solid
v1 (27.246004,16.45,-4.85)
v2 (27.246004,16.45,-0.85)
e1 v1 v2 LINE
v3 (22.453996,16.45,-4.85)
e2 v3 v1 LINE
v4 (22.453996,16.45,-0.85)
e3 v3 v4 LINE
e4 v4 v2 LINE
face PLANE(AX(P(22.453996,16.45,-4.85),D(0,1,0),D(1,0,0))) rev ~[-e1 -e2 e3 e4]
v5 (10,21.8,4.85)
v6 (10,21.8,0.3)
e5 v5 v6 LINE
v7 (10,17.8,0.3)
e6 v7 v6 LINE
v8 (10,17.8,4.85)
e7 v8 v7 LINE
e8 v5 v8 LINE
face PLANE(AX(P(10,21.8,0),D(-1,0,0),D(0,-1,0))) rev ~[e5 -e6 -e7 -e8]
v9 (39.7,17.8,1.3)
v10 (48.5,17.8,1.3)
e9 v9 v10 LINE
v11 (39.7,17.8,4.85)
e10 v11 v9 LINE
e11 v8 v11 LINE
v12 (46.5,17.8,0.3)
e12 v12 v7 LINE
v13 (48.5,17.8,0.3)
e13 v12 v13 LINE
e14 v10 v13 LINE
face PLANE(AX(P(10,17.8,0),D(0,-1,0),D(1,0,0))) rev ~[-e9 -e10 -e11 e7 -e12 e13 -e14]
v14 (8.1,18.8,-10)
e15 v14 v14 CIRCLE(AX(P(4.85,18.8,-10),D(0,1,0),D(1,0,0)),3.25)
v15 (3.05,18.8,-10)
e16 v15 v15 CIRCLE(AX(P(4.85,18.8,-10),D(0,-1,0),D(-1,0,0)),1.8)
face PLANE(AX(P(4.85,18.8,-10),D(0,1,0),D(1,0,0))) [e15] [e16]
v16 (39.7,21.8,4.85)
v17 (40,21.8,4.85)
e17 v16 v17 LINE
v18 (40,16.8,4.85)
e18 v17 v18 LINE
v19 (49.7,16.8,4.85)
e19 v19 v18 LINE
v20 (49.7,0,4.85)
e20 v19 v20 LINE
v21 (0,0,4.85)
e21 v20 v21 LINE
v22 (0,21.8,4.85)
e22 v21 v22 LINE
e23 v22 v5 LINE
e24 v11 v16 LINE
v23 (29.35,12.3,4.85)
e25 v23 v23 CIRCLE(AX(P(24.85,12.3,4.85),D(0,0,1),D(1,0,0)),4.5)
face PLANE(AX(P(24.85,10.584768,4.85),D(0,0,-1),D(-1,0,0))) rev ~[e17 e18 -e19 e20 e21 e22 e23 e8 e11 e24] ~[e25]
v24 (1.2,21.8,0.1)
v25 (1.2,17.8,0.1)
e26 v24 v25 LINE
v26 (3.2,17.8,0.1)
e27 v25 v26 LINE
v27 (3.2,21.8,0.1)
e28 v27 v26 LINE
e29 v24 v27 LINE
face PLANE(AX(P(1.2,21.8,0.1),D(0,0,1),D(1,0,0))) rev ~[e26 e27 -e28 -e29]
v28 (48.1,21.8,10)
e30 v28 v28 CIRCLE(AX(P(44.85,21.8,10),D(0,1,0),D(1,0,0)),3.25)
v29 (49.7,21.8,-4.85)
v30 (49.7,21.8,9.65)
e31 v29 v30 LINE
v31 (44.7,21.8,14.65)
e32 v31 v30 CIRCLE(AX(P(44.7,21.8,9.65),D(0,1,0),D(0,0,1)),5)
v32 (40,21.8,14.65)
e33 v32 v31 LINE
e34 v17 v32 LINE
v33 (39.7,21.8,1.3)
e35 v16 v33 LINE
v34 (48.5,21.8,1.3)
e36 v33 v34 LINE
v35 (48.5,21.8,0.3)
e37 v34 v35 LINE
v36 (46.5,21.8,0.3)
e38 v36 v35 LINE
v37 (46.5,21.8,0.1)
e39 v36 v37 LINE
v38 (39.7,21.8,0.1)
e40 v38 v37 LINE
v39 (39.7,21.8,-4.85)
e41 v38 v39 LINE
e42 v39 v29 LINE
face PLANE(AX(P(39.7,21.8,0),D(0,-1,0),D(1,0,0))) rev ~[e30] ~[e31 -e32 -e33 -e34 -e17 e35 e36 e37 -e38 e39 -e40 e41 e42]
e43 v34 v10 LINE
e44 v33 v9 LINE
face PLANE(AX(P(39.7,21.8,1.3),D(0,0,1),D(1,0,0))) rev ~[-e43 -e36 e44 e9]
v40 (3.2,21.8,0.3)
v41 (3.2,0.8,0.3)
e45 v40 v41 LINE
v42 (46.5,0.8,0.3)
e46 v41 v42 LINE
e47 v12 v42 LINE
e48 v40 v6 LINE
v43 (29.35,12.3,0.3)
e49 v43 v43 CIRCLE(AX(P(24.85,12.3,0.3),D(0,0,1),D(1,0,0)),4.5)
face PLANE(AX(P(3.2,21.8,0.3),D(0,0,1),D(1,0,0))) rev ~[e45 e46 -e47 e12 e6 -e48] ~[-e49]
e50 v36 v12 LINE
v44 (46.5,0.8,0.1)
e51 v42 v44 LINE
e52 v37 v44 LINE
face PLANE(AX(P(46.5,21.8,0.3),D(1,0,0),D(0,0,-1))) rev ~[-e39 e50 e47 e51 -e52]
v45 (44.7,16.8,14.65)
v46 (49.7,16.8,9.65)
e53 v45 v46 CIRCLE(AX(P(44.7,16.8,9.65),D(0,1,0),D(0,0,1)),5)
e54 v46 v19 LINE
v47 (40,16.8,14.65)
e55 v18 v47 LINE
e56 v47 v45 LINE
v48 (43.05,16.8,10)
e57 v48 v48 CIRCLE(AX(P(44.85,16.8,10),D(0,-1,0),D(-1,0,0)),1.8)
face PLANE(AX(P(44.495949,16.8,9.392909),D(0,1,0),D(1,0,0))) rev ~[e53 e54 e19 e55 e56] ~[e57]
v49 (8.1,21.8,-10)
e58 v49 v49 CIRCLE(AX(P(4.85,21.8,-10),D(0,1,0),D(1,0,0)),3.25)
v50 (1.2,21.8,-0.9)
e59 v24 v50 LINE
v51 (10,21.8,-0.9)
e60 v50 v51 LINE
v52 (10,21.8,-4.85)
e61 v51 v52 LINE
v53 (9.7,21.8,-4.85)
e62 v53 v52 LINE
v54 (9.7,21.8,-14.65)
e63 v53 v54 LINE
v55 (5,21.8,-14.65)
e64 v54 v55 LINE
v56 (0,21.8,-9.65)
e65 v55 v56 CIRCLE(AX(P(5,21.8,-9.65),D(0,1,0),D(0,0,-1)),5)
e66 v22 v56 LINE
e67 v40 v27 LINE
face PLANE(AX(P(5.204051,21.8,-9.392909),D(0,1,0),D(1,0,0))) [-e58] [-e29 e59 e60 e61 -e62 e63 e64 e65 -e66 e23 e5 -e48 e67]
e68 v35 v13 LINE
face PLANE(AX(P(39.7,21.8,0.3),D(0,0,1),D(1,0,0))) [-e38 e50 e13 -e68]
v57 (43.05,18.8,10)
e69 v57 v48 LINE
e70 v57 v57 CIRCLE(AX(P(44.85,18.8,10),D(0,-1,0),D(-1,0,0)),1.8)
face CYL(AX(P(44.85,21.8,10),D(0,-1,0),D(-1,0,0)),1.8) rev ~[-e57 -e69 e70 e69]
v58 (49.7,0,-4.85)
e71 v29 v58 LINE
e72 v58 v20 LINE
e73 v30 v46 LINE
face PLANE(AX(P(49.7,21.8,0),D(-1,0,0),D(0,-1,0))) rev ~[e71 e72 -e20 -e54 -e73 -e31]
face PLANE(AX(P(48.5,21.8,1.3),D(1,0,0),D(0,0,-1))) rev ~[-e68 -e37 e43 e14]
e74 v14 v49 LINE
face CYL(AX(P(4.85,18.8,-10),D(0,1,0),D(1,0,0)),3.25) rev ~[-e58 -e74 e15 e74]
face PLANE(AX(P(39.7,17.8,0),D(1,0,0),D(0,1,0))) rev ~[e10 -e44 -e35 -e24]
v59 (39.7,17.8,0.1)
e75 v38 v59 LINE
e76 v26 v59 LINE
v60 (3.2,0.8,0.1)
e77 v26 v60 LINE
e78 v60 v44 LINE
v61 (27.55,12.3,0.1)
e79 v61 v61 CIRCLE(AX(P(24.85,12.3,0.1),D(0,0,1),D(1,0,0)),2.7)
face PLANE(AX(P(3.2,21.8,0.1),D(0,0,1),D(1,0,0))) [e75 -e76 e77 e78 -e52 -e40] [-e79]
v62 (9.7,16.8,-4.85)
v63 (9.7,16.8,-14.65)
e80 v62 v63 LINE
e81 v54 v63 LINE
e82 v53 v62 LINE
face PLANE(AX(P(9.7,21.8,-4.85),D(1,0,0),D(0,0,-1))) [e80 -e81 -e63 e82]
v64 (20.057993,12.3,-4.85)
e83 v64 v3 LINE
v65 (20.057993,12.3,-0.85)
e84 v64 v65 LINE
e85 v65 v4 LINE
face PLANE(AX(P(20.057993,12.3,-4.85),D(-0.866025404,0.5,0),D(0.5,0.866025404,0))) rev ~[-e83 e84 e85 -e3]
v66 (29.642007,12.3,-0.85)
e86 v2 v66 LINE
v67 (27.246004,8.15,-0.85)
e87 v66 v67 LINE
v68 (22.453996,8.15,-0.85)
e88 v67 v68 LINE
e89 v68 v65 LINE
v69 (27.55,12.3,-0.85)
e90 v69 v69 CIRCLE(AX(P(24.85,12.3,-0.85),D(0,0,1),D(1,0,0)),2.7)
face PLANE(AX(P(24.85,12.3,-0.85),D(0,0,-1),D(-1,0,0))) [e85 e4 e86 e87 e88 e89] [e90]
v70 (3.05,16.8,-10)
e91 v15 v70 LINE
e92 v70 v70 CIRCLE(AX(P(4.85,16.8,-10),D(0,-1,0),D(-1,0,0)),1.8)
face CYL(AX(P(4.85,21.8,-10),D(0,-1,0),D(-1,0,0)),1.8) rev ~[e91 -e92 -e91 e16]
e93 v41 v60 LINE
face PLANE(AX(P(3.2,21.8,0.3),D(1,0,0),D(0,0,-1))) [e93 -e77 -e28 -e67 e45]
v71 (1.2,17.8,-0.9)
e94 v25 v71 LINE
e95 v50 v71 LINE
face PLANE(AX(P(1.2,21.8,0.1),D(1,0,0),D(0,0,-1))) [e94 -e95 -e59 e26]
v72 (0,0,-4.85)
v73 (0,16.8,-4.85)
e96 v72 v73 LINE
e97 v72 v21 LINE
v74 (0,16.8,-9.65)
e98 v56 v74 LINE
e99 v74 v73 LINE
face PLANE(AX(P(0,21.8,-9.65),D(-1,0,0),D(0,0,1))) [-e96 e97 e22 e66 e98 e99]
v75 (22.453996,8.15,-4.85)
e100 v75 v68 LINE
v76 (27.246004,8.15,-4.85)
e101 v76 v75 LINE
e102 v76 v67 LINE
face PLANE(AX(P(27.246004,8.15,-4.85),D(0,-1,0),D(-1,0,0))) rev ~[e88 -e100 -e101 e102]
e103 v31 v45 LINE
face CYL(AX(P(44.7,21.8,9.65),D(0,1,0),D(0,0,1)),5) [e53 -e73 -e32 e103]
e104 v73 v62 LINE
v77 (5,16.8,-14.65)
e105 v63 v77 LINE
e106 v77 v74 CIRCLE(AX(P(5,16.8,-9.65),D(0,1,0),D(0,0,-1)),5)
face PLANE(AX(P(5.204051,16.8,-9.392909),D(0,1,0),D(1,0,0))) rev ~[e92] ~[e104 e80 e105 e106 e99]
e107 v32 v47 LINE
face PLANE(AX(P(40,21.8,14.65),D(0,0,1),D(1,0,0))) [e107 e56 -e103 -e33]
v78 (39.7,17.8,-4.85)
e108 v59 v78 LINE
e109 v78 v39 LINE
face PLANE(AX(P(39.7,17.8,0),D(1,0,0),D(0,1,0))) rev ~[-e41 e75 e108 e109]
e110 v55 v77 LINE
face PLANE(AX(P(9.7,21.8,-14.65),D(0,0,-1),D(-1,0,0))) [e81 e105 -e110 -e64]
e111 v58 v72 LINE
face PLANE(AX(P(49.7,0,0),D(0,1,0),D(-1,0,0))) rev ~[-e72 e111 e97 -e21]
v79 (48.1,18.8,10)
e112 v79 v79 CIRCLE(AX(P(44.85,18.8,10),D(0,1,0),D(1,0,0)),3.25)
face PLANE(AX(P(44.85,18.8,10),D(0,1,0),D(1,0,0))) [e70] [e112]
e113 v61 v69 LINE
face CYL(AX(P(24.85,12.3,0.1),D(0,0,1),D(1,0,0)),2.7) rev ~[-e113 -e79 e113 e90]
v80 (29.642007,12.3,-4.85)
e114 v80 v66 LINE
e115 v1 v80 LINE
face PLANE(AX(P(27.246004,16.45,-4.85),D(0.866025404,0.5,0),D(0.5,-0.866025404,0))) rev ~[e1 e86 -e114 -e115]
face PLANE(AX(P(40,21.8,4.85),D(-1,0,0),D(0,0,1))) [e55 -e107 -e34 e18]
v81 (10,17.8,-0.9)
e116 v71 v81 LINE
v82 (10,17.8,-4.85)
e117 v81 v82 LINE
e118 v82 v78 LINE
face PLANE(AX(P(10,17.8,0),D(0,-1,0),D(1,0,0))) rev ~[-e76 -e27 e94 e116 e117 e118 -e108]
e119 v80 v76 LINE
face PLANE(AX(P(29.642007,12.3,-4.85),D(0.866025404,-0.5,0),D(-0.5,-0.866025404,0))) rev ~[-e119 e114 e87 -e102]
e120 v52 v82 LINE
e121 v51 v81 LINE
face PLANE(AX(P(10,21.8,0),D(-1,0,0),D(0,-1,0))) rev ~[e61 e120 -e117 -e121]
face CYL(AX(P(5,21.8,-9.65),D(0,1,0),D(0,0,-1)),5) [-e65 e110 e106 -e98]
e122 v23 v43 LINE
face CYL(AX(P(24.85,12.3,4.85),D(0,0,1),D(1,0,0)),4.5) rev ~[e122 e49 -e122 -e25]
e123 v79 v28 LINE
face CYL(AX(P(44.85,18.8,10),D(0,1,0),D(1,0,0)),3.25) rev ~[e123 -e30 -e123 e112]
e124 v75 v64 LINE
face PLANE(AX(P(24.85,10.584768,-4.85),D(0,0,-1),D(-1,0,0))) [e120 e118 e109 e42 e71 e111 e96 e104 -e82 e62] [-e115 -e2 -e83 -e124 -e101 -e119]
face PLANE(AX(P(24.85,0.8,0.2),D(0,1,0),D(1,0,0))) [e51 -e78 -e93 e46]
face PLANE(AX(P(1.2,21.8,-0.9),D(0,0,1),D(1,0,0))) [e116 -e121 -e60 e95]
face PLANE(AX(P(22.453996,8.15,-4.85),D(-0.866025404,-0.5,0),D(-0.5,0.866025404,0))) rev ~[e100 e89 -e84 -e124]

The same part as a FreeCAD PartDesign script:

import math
import FreeCAD as App
import Part
import Sketcher

V = App.Vector
Q = App.Units.Quantity


def add_polygon(sketch, points):
    """Adds a closed chain of lines whose ends are joined by coincident constraints."""
    first, n = sketch.GeometryCount, len(points)
    for a, b in zip(points, points[1:] + points[:1]):
        sketch.addGeometry(Part.LineSegment(App.Vector(*a, 0), App.Vector(*b, 0)), False)
    for i in range(n):
        sketch.addConstraint(Sketcher.Constraint("Coincident", first + i, 2, first + (i + 1) % n, 1))

doc = App.newDocument("Part")
body = doc.addObject("PartDesign::Body", "Body")

sketch1 = body.newObject("Sketcher::SketchObject", "Sketch")
sketch1.AttachmentSupport = (doc.getObject("XY_Plane"), [""])
sketch1.MapMode = "FlatFace"
add_polygon(sketch1, [(0, 21.8), (0, 0), (49.7, 0), (49.7, 21.8), (39.7, 21.8), (39.7, 17.8), (10, 17.8), (10, 21.8)])
sketch1.addConstraint([
    Sketcher.Constraint("Vertical", 0),
    Sketcher.Constraint("Horizontal", 1),
    Sketcher.Constraint("Vertical", 2),
    Sketcher.Constraint("Horizontal", 3),
    Sketcher.Constraint("Vertical", 4),
    Sketcher.Constraint("Horizontal", 5),
    Sketcher.Constraint("Vertical", 6),
    Sketcher.Constraint("Horizontal", 7),
    Sketcher.Constraint("Coincident", 0, 2, -1, 1),
    Sketcher.Constraint("Horizontal", 3, 2, 6, 2),
    Sketcher.Constraint("Equal", 3, 7),
    Sketcher.Constraint("DistanceX", 3, 2, 3, 1, 10.0),
    Sketcher.Constraint("DistanceY", 4, 2, 4, 1, 4.0),
    Sketcher.Constraint("DistanceX", 1, 1, 1, 2, 49.7),
    Sketcher.Constraint("DistanceY", 0, 2, 0, 1, 21.8),
])
pad1 = body.newObject("PartDesign::Pad", "Pad")
pad1.Profile = sketch1
pad1.Length = 9.7
pad1.Midplane = True

sketch2 = body.newObject("Sketcher::SketchObject", "Sketch001")
sketch2.AttachmentSupport = (doc.getObject("XZ_Plane"), [""])
sketch2.MapMode = "FlatFace"
sketch2.AttachmentOffset = App.Placement(V(0, 0, -21.8), App.Rotation())
add_polygon(sketch2, [(3.2, 0.1), (3.2, 0.3), (46.5, 0.3), (46.5, 0.1)])
sketch2.addConstraint([
    Sketcher.Constraint("Vertical", 0),
    Sketcher.Constraint("Horizontal", 1),
    Sketcher.Constraint("Vertical", 2),
    Sketcher.Constraint("Horizontal", 3),
    Sketcher.Constraint("DistanceX", 1, 1, 1, 2, 43.3),
    Sketcher.Constraint("DistanceY", 0, 1, 0, 2, 0.2),
    Sketcher.Constraint("DistanceX", -1, 1, 0, 2, 3.2),
    Sketcher.Constraint("DistanceY", -1, 1, 0, 2, 0.3),
])
pocket1 = body.newObject("PartDesign::Pocket", "Pocket")
pocket1.Profile = sketch2
pocket1.Length = 21
pocket1.Reversed = True

sketch3 = body.newObject("Sketcher::SketchObject", "Sketch002")
sketch3.AttachmentSupport = (doc.getObject("XZ_Plane"), [""])
sketch3.MapMode = "FlatFace"
sketch3.AttachmentOffset = App.Placement(V(0, 0, -21.8), App.Rotation())
sketch3.addGeometry([
    Part.LineSegment(V(0, -9.7, 0), V(0, -4.8, 0)),
    Part.LineSegment(V(0, -4.8, 0), V(9.7, -4.8, 0)),
    Part.LineSegment(V(9.7, -4.8, 0), V(9.7, -14.7, 0)),
    Part.LineSegment(V(9.7, -14.7, 0), V(5, -14.7, 0)),
    Part.ArcOfCircle(Part.Circle(V(5, -9.7, 0), V(0, 0, 1), 5), math.radians(180), math.radians(270)),
    Part.LineSegment(V(49.7, 4.8, 0), V(40, 4.8, 0)),
    Part.LineSegment(V(40, 4.8, 0), V(40, 14.7, 0)),
    Part.LineSegment(V(40, 14.7, 0), V(44.7, 14.7, 0)),
    Part.ArcOfCircle(Part.Circle(V(44.7, 9.7, 0), V(0, 0, 1), 5), math.radians(0), math.radians(90)),
    Part.LineSegment(V(49.7, 9.7, 0), V(49.7, 4.8, 0)),
], False)
sketch3.addConstraint([
    Sketcher.Constraint("Coincident", 0, 2, 1, 1),
    Sketcher.Constraint("Coincident", 1, 2, 2, 1),
    Sketcher.Constraint("Coincident", 2, 2, 3, 1),
    Sketcher.Constraint("Tangent", 3, 2, 4, 2),
    Sketcher.Constraint("Tangent", 4, 1, 0, 1),
    Sketcher.Constraint("Coincident", 5, 2, 6, 1),
    Sketcher.Constraint("Coincident", 6, 2, 7, 1),
    Sketcher.Constraint("Tangent", 7, 2, 8, 2),
    Sketcher.Constraint("Tangent", 8, 1, 9, 1),
    Sketcher.Constraint("Coincident", 9, 2, 5, 1),
    Sketcher.Constraint("Vertical", 0),
    Sketcher.Constraint("Horizontal", 1),
    Sketcher.Constraint("Vertical", 2),
    Sketcher.Constraint("Horizontal", 3),
    Sketcher.Constraint("Horizontal", 5),
    Sketcher.Constraint("Vertical", 6),
    Sketcher.Constraint("Horizontal", 7),
    Sketcher.Constraint("Vertical", 9),
    Sketcher.Constraint("Equal", 4, 8),
    Sketcher.Constraint("PointOnObject", 0, 2, -2),
    Sketcher.Constraint("Equal", 1, 5),
    Sketcher.Constraint("Equal", 2, 6),
    Sketcher.Constraint("Radius", 4, 5.0),
    Sketcher.Constraint("DistanceX", 1, 1, 1, 2, 9.7),
    Sketcher.Constraint("DistanceY", 0, 1, 0, 2, 4.8),
    Sketcher.Constraint("DistanceX", -1, 1, 5, 2, 40.0),
    Sketcher.Constraint("DistanceY", 4, 3, 8, 3, 19.3),
    Sketcher.Constraint("DistanceY", 4, 3, -1, 1, 9.65),
])
pad2 = body.newObject("PartDesign::Pad", "Pad001")
pad2.Profile = sketch3
pad2.Length = 5

sketch4 = body.newObject("Sketcher::SketchObject", "Sketch003")
sketch4.AttachmentSupport = (doc.getObject("XZ_Plane"), [""])
sketch4.MapMode = "FlatFace"
sketch4.AttachmentOffset = App.Placement(V(0, 0, -21.8), App.Rotation())
sketch4.addGeometry([
    Part.Circle(V(44.9, 10, 0), V(0, 0, 1), 1.8),
    Part.Circle(V(4.8, -10, 0), V(0, 0, 1), 1.8),
], False)
sketch4.addConstraint([
    Sketcher.Constraint("Equal", 0, 1),
    Sketcher.Constraint("Diameter", 0, 3.6),
    Sketcher.Constraint("DistanceY", -1, 1, 0, 3, 10.0),
    Sketcher.Constraint("DistanceY", 1, 3, -1, 1, 10.0),
    Sketcher.Constraint("DistanceX", 1, 3, 0, 3, 40.0),
    Sketcher.Constraint("DistanceX", -1, 1, 0, 3, 44.85),
])
doc.recompute()
hole = body.newObject("PartDesign::Hole", "Hole")
hole.Profile = sketch4
hole.ThreadType = "None"
hole.Diameter = 3.6
hole.DepthType = "ThroughAll"
hole.HoleCutType = "Counterbore"
hole.HoleCutDiameter = 6.5
hole.HoleCutDepth = 3
hole.Reversed = True

sketch5 = body.newObject("Sketcher::SketchObject", "Sketch004")
sketch5.AttachmentSupport = (doc.getObject("XY_Plane"), [""])
sketch5.MapMode = "FlatFace"
sketch5.AttachmentOffset = App.Placement(V(0, 0, -4.85), App.Rotation())
add_polygon(sketch5, [(29.6, 12.3), (27.2, 8.2), (22.5, 8.2), (20.1, 12.3), (22.5, 16.4), (27.2, 16.4)])
sketch5.addConstraint([
    Sketcher.Constraint("Horizontal", 1),
    Sketcher.Constraint("Horizontal", 4),
    Sketcher.Constraint("Parallel", 0, 3),
    Sketcher.Constraint("Parallel", 2, 5),
    Sketcher.Constraint("Horizontal", 2, 2, 5, 2),
    Sketcher.Constraint("Vertical", 1, 2, 3, 2),
    Sketcher.Constraint("Vertical", 0, 2, 4, 2),
    Sketcher.Constraint("Angle", 0, Q("-120 deg")),
    Sketcher.Constraint("DistanceY", -1, 1, 2, 2, 12.3),
    Sketcher.Constraint("DistanceY", 1, 2, 3, 2, 8.3),
    Sketcher.Constraint("DistanceX", 1, 2, 1, 1, 4.792007),
    Sketcher.Constraint("DistanceX", -1, 1, 0, 2, 27.246004),
])
pocket2 = body.newObject("PartDesign::Pocket", "Pocket001")
pocket2.Profile = sketch5
pocket2.Length = 4
pocket2.Reversed = True

sketch6 = body.newObject("Sketcher::SketchObject", "Sketch005")
sketch6.AttachmentSupport = (doc.getObject("XY_Plane"), [""])
sketch6.MapMode = "FlatFace"
sketch6.AttachmentOffset = App.Placement(V(0, 0, 4.85), App.Rotation())
sketch6.addGeometry(Part.Circle(V(24.9, 12.3, 0), V(0, 0, 1), 4.5), False)
sketch6.addConstraint([
    Sketcher.Constraint("Diameter", 0, 9.0),
    Sketcher.Constraint("DistanceY", -1, 1, 0, 3, 12.3),
    Sketcher.Constraint("DistanceX", -1, 1, 0, 3, 24.85),
])
pocket3 = body.newObject("PartDesign::Pocket", "Pocket002")
pocket3.Profile = sketch6
pocket3.Type = "UpToFirst"

sketch7 = body.newObject("Sketcher::SketchObject", "Sketch006")
sketch7.AttachmentSupport = (doc.getObject("XZ_Plane"), [""])
sketch7.MapMode = "FlatFace"
sketch7.AttachmentOffset = App.Placement(V(0, 0, -21.8), App.Rotation())
add_polygon(sketch7, [(1.2, -0.9), (1.2, 0.1), (10, 0.1), (10, -0.9)])
add_polygon(sketch7, [(39.7, 0.3), (39.7, 1.3), (48.5, 1.3), (48.5, 0.3)])
sketch7.addConstraint([
    Sketcher.Constraint("Vertical", 0),
    Sketcher.Constraint("Horizontal", 1),
    Sketcher.Constraint("Vertical", 2),
    Sketcher.Constraint("Horizontal", 3),
    Sketcher.Constraint("Vertical", 4),
    Sketcher.Constraint("Horizontal", 5),
    Sketcher.Constraint("Vertical", 6),
    Sketcher.Constraint("Horizontal", 7),
    Sketcher.Constraint("Equal", 3, 5),
    Sketcher.Constraint("Equal", 2, 4),
    Sketcher.Constraint("DistanceY", 0, 1, 0, 2, 1.0),
    Sketcher.Constraint("DistanceX", 1, 1, 1, 2, 8.8),
    Sketcher.Constraint("DistanceX", -1, 1, 1, 2, 10.0),
    Sketcher.Constraint("DistanceY", -1, 1, 0, 2, 0.1),
    Sketcher.Constraint("DistanceX", -1, 1, 4, 2, 39.7),
    Sketcher.Constraint("DistanceY", -1, 1, 4, 2, 1.3),
])
pocket4 = body.newObject("PartDesign::Pocket", "Pocket003")
pocket4.Profile = sketch7
pocket4.Length = 4
pocket4.Reversed = True

sketch8 = body.newObject("Sketcher::SketchObject", "Sketch007")
sketch8.AttachmentSupport = (doc.getObject("XY_Plane"), [""])
sketch8.MapMode = "FlatFace"
sketch8.AttachmentOffset = App.Placement(V(0, 0, 0.1), App.Rotation())
sketch8.addGeometry(Part.Circle(V(24.9, 12.3, 0), V(0, 0, 1), 2.7), False)
sketch8.addConstraint([
    Sketcher.Constraint("Diameter", 0, 5.4),
    Sketcher.Constraint("DistanceY", -1, 1, 0, 3, 12.3),
    Sketcher.Constraint("DistanceX", -1, 1, 0, 3, 24.85),
])
pocket5 = body.newObject("PartDesign::Pocket", "Pocket004")
pocket5.Profile = sketch8
pocket5.Length = 0.95

doc.recompute()
